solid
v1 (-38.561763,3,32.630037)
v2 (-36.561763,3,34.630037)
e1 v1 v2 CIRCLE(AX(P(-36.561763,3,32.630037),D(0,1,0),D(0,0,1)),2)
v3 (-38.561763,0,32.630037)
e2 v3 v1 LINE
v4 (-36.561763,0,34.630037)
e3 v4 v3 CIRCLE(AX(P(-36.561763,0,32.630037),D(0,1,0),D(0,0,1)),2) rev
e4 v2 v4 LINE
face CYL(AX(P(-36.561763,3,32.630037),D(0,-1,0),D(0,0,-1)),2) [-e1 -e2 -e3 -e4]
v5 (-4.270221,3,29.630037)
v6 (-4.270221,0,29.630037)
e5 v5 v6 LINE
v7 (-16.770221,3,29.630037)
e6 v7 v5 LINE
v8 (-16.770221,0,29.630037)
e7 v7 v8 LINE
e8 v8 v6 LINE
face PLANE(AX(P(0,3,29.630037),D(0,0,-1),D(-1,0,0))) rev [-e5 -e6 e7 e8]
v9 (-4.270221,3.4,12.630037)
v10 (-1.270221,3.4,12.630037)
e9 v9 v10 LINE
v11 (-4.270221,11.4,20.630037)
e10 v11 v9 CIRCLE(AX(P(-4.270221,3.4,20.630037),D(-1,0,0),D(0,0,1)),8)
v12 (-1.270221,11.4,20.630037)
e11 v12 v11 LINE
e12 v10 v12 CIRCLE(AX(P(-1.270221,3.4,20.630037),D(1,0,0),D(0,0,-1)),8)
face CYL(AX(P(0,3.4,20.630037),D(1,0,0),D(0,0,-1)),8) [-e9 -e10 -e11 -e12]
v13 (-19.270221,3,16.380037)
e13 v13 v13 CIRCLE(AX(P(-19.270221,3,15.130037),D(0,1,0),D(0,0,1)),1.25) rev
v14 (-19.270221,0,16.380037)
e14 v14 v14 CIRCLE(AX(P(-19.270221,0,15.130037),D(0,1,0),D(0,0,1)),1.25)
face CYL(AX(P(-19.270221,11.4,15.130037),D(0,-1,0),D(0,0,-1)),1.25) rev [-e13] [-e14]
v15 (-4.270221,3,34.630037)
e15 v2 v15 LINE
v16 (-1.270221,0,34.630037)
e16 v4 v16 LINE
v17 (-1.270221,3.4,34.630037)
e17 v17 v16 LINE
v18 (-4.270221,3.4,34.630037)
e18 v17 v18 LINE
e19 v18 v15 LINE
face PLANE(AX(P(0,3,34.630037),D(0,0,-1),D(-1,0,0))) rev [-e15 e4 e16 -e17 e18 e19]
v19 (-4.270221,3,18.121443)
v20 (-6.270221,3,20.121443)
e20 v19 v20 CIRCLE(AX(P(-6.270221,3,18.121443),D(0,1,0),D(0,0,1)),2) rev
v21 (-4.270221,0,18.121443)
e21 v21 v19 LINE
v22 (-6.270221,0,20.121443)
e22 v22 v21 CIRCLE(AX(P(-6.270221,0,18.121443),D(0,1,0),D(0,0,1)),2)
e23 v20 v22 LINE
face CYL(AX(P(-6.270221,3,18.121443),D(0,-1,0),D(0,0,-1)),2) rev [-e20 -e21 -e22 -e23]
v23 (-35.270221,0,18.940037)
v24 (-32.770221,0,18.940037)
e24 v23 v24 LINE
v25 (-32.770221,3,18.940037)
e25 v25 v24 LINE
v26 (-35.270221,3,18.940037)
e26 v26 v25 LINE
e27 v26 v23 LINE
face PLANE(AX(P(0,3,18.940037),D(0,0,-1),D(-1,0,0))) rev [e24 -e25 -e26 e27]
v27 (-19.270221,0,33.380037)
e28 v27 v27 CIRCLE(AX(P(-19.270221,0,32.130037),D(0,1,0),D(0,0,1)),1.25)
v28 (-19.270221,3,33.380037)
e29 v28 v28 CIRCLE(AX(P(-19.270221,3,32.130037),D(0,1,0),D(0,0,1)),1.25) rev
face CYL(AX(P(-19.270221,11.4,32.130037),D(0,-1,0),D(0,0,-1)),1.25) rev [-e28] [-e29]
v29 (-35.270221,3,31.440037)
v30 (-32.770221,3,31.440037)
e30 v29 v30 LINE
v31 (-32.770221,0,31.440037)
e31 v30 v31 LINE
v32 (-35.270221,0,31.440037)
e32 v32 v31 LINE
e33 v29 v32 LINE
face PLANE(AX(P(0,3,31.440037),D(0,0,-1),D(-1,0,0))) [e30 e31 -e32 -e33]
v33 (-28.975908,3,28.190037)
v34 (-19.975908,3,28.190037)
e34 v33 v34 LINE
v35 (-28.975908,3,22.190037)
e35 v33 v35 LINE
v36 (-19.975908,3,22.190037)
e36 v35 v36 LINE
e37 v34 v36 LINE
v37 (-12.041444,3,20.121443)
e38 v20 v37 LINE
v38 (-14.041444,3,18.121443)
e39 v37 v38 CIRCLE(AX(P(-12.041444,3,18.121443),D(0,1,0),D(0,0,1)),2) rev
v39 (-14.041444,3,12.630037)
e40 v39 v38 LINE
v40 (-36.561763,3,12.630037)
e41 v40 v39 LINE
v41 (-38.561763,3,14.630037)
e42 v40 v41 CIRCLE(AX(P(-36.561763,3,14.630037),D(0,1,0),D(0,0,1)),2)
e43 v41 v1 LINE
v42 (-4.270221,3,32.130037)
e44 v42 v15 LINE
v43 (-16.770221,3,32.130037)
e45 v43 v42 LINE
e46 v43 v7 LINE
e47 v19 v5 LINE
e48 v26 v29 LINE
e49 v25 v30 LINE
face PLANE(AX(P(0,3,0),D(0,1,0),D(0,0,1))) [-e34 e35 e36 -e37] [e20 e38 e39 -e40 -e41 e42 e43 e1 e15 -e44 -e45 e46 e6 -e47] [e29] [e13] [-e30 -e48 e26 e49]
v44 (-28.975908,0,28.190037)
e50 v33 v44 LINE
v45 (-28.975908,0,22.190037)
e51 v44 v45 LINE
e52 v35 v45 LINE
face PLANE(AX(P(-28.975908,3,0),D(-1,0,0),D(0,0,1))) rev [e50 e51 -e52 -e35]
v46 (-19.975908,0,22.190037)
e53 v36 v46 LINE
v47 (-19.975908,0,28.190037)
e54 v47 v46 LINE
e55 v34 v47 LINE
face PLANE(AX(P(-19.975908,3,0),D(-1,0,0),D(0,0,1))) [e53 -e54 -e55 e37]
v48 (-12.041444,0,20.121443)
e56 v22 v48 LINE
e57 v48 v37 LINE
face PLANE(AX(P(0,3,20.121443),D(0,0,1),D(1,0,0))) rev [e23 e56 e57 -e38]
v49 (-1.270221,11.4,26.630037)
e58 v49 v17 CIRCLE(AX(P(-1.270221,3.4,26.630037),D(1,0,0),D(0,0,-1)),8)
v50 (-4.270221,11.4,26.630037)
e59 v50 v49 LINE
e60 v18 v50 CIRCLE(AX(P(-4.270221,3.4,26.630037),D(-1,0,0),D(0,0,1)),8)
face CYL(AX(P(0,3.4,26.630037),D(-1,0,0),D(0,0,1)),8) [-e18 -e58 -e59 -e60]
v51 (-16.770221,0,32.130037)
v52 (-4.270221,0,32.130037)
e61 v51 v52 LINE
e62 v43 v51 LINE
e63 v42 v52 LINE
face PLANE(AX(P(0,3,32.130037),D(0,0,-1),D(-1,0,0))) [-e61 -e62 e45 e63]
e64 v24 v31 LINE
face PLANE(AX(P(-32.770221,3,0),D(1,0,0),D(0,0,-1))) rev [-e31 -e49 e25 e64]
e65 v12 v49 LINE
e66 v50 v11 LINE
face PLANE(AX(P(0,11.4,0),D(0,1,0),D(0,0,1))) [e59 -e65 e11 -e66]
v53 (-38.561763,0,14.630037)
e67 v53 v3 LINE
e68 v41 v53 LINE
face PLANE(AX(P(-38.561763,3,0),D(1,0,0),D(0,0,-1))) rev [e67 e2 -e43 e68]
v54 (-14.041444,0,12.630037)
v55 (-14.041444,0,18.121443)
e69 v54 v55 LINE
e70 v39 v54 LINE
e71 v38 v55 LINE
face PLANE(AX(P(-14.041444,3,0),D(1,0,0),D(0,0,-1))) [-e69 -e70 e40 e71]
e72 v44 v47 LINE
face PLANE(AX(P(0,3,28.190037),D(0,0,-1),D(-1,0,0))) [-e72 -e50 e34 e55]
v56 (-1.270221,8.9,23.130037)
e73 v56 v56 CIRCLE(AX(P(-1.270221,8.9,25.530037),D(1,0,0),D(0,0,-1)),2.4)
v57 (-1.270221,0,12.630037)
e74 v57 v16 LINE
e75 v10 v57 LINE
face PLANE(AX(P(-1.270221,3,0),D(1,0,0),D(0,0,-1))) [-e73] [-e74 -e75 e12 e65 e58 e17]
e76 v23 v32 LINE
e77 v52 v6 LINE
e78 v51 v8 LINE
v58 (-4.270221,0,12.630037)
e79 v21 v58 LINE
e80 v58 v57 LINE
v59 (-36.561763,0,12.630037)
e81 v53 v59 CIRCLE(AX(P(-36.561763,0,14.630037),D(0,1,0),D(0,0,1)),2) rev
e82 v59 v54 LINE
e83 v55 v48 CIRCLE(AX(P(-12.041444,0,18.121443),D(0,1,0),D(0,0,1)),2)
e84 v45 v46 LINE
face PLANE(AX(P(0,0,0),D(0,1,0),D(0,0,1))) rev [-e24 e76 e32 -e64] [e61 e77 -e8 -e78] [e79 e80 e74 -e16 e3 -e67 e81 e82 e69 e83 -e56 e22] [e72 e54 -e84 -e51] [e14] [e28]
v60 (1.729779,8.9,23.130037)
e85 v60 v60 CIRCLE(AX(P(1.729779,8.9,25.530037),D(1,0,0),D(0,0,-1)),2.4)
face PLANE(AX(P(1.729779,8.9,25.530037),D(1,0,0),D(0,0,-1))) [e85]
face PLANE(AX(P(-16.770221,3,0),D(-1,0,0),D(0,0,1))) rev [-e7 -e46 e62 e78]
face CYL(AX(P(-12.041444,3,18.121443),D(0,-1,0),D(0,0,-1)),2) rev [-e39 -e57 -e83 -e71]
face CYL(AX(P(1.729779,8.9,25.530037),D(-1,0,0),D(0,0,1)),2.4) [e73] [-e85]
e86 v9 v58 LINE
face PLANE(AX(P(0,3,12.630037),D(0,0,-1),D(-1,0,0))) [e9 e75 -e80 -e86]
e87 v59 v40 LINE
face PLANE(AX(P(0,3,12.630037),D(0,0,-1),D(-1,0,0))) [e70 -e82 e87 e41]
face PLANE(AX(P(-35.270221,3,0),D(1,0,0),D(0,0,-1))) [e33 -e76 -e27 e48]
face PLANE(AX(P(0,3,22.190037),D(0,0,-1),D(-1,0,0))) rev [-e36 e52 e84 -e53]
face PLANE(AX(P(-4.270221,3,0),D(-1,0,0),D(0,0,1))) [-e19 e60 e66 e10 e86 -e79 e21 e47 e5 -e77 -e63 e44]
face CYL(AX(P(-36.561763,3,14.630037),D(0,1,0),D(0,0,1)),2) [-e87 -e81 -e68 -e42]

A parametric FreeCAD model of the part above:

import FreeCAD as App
import Part
import Sketcher

V = App.Vector


def edges_at(feature, points):
    """Names of the edges that pass closest to the given points."""
    edges = feature.Shape.Edges
    near = lambda p: min(range(len(edges)), key=lambda i: edges[i].distToShape(Part.Vertex(*p))[0])
    return sorted({f"Edge{near(p) + 1}" for p in points})


def add_polygon(sketch, points):
    """Adds a closed chain of lines whose ends are joined by coincident constraints."""
    first, n = sketch.GeometryCount, len(points)
    for a, b in zip(points, points[1:] + points[:1]):
        sketch.addGeometry(Part.LineSegment(App.Vector(*a, 0), App.Vector(*b, 0)), False)
    for i in range(n):
        sketch.addConstraint(Sketcher.Constraint("Coincident", first + i, 2, first + (i + 1) % n, 1))

doc = App.newDocument("Part")
body = doc.addObject("PartDesign::Body", "Body")

# Sketch on XZ plane
sketch1 = body.newObject("Sketcher::SketchObject", "Sketch")
sketch1.AttachmentSupport = (doc.getObject("XZ_Plane"), [""])
sketch1.MapMode = "FlatFace"
add_polygon(sketch1, [(-14, 20.1), (-14, 12.6), (-38.6, 12.6), (-38.6, 34.6), (-1.3, 34.6), (-1.3, 12.6), (-4.3, 12.6), (-4.3, 20.1)])  # lines 0-7
add_polygon(sketch1, [(-4.3, 32.1), (-16.8, 32.1), (-16.8, 29.6), (-4.3, 29.6)])  # lines 8-11
add_polygon(sketch1, [(-32.8, 31.4), (-35.3, 31.4), (-35.3, 18.9), (-32.8, 18.9)])  # lines 12-15
add_polygon(sketch1, [(-20, 28.2), (-29, 28.2), (-29, 22.2), (-20, 22.2)])  # lines 16-19
sketch1.addConstraint([
    Sketcher.Constraint("Vertical", 0),
    Sketcher.Constraint("Horizontal", 1),
    Sketcher.Constraint("Vertical", 2),
    Sketcher.Constraint("Horizontal", 3),
    Sketcher.Constraint("Vertical", 4),
    Sketcher.Constraint("Horizontal", 5),
    Sketcher.Constraint("Vertical", 6),
    Sketcher.Constraint("Horizontal", 7),
    Sketcher.Constraint("Horizontal", 8),
    Sketcher.Constraint("Vertical", 9),
    Sketcher.Constraint("Horizontal", 10),
    Sketcher.Constraint("Vertical", 11),
    Sketcher.Constraint("Horizontal", 12),
    Sketcher.Constraint("Vertical", 13),
    Sketcher.Constraint("Horizontal", 14),
    Sketcher.Constraint("Vertical", 15),
    Sketcher.Constraint("Horizontal", 16),
    Sketcher.Constraint("Vertical", 17),
    Sketcher.Constraint("Horizontal", 18),
    Sketcher.Constraint("Vertical", 19),
    Sketcher.Constraint("Horizontal", 1, 2, 4, 2),
    Sketcher.Constraint("Vertical", 6, 2, 10, 2),
    Sketcher.Constraint("Equal", 14, 9),
    Sketcher.Constraint("Equal", 10, 13),
    Sketcher.Constraint("DistanceX", 5, 2, 5, 1, 3.0),
    Sketcher.Constraint("DistanceX", 16, 2, 16, 1, 9.0),
    Sketcher.Constraint("DistanceY", 2, 1, 2, 2, 22.0),
    Sketcher.Constraint("DistanceY", 17, 2, 17, 1, 6.0),
    Sketcher.Constraint("DistanceX", 8, 2, 8, 1, 12.5),
    Sketcher.Constraint("DistanceX", 12, 2, 12, 1, 2.5),
    Sketcher.Constraint("DistanceY", 9, 2, 3, 2, 5.0),
    Sketcher.Constraint("DistanceX", 15, 2, 8, 2, 16.0),
    Sketcher.Constraint("DistanceY", 12, 2, 2, 2, 3.19),
    Sketcher.Constraint("DistanceY", 16, 2, 15, 2, 3.25),
    Sketcher.Constraint("DistanceX", 1, 2, 1, 1, 24.520319),
    Sketcher.Constraint("DistanceX", 3, 1, 3, 2, 37.291543),
    Sketcher.Constraint("DistanceY", 0, 2, 0, 1, 7.491405),
    Sketcher.Constraint("DistanceX", 3, 2, -1, 1, 1.270221),
    Sketcher.Constraint("DistanceY", -1, 1, 0, 2, 12.630037),
    Sketcher.Constraint("DistanceX", 16, 2, -1, 1, 28.975908),
])
pad1 = body.newObject("PartDesign::Pad", "Pad")
pad1.Profile = sketch1
pad1.Length = 3
pad1.Reversed = True
doc.recompute()

fillet = body.newObject("PartDesign::Fillet", "Fillet")
fillet.Base = (pad1, edges_at(pad1, [
    (-14.041, 1.5, 20.121),
    (-4.27, 1.5, 20.121),
    (-1.27, 1.5, 34.63),
    (-38.562, 1.5, 34.63),
    (-38.562, 1.5, 12.63),
]))
fillet.Radius = 2

# Sketch on XZ plane
sketch2 = body.newObject("Sketcher::SketchObject", "Sketch001")
sketch2.AttachmentSupport = (doc.getObject("XZ_Plane"), [""])
sketch2.MapMode = "FlatFace"
add_polygon(sketch2, [(-4.3, 12.6), (-4.3, 34.6), (-1.3, 34.6), (-1.3, 12.6)])  # lines 0-3
sketch2.addConstraint([
    Sketcher.Constraint("Vertical", 0),
    Sketcher.Constraint("Horizontal", 1),
    Sketcher.Constraint("Vertical", 2),
    Sketcher.Constraint("Horizontal", 3),
    Sketcher.Constraint("DistanceX", 1, 1, 1, 2, 3.0),
    Sketcher.Constraint("DistanceY", 0, 1, 0, 2, 22.0),
    Sketcher.Constraint("DistanceX", 0, 2, -1, 1, 4.270221),
    Sketcher.Constraint("DistanceY", -1, 1, 0, 2, 34.630037),
])
pad2 = body.newObject("PartDesign::Pad", "Pad001")
pad2.Profile = sketch2
pad2.Length = 11.4
pad2.Reversed = True

# Sketch on YZ plane
sketch3 = body.newObject("Sketcher::SketchObject", "Sketch002")
sketch3.AttachmentSupport = (doc.getObject("YZ_Plane"), [""])
sketch3.MapMode = "FlatFace"
sketch3.AttachmentOffset = App.Placement(V(0, 0, -1.270221), App.Rotation())
sketch3.addGeometry(Part.Circle(V(8.9, 25.5, 0), V(0, 0, 1), 2.4), False)
sketch3.addConstraint([
    Sketcher.Constraint("Diameter", 0, 4.8),
    Sketcher.Constraint("DistanceX", -1, 1, 0, 3, 8.9),
    Sketcher.Constraint("DistanceY", -1, 1, 0, 3, 25.530037),
])
pad3 = body.newObject("PartDesign::Pad", "Pad002")
pad3.Profile = sketch3
pad3.Length = 3
doc.recompute()

fillet2 = body.newObject("PartDesign::Fillet", "Fillet001")
fillet2.Base = (pad3, edges_at(pad3, [(-2.77, 11.4, 12.63), (-2.77, 11.4, 34.63)]))
fillet2.Radius = 8

# Sketch on XZ plane
sketch4 = body.newObject("Sketcher::SketchObject", "Sketch003")
sketch4.AttachmentSupport = (doc.getObject("XZ_Plane"), [""])
sketch4.MapMode = "FlatFace"
sketch4.addGeometry([
    Part.Circle(V(-19.3, 32.1, 0), V(0, 0, 1), 1.2),
    Part.Circle(V(-19.3, 15.1, 0), V(0, 0, 1), 1.2),
], False)
sketch4.addConstraint([
    Sketcher.Constraint("Equal", 0, 1),
    Sketcher.Constraint("Vertical", 0, 3, 1, 3),
    Sketcher.Constraint("Diameter", 0, 2.5),
    Sketcher.Constraint("DistanceY", 1, 3, 0, 3, 17.0),
    Sketcher.Constraint("DistanceX", 0, 3, -1, 1, 19.270221),
    Sketcher.Constraint("DistanceY", -1, 1, 0, 3, 32.130037),
])
pocket1 = body.newObject("PartDesign::Pocket", "Pocket")
pocket1.Profile = sketch4
pocket1.Type = "ThroughAll"

doc.recompute()
